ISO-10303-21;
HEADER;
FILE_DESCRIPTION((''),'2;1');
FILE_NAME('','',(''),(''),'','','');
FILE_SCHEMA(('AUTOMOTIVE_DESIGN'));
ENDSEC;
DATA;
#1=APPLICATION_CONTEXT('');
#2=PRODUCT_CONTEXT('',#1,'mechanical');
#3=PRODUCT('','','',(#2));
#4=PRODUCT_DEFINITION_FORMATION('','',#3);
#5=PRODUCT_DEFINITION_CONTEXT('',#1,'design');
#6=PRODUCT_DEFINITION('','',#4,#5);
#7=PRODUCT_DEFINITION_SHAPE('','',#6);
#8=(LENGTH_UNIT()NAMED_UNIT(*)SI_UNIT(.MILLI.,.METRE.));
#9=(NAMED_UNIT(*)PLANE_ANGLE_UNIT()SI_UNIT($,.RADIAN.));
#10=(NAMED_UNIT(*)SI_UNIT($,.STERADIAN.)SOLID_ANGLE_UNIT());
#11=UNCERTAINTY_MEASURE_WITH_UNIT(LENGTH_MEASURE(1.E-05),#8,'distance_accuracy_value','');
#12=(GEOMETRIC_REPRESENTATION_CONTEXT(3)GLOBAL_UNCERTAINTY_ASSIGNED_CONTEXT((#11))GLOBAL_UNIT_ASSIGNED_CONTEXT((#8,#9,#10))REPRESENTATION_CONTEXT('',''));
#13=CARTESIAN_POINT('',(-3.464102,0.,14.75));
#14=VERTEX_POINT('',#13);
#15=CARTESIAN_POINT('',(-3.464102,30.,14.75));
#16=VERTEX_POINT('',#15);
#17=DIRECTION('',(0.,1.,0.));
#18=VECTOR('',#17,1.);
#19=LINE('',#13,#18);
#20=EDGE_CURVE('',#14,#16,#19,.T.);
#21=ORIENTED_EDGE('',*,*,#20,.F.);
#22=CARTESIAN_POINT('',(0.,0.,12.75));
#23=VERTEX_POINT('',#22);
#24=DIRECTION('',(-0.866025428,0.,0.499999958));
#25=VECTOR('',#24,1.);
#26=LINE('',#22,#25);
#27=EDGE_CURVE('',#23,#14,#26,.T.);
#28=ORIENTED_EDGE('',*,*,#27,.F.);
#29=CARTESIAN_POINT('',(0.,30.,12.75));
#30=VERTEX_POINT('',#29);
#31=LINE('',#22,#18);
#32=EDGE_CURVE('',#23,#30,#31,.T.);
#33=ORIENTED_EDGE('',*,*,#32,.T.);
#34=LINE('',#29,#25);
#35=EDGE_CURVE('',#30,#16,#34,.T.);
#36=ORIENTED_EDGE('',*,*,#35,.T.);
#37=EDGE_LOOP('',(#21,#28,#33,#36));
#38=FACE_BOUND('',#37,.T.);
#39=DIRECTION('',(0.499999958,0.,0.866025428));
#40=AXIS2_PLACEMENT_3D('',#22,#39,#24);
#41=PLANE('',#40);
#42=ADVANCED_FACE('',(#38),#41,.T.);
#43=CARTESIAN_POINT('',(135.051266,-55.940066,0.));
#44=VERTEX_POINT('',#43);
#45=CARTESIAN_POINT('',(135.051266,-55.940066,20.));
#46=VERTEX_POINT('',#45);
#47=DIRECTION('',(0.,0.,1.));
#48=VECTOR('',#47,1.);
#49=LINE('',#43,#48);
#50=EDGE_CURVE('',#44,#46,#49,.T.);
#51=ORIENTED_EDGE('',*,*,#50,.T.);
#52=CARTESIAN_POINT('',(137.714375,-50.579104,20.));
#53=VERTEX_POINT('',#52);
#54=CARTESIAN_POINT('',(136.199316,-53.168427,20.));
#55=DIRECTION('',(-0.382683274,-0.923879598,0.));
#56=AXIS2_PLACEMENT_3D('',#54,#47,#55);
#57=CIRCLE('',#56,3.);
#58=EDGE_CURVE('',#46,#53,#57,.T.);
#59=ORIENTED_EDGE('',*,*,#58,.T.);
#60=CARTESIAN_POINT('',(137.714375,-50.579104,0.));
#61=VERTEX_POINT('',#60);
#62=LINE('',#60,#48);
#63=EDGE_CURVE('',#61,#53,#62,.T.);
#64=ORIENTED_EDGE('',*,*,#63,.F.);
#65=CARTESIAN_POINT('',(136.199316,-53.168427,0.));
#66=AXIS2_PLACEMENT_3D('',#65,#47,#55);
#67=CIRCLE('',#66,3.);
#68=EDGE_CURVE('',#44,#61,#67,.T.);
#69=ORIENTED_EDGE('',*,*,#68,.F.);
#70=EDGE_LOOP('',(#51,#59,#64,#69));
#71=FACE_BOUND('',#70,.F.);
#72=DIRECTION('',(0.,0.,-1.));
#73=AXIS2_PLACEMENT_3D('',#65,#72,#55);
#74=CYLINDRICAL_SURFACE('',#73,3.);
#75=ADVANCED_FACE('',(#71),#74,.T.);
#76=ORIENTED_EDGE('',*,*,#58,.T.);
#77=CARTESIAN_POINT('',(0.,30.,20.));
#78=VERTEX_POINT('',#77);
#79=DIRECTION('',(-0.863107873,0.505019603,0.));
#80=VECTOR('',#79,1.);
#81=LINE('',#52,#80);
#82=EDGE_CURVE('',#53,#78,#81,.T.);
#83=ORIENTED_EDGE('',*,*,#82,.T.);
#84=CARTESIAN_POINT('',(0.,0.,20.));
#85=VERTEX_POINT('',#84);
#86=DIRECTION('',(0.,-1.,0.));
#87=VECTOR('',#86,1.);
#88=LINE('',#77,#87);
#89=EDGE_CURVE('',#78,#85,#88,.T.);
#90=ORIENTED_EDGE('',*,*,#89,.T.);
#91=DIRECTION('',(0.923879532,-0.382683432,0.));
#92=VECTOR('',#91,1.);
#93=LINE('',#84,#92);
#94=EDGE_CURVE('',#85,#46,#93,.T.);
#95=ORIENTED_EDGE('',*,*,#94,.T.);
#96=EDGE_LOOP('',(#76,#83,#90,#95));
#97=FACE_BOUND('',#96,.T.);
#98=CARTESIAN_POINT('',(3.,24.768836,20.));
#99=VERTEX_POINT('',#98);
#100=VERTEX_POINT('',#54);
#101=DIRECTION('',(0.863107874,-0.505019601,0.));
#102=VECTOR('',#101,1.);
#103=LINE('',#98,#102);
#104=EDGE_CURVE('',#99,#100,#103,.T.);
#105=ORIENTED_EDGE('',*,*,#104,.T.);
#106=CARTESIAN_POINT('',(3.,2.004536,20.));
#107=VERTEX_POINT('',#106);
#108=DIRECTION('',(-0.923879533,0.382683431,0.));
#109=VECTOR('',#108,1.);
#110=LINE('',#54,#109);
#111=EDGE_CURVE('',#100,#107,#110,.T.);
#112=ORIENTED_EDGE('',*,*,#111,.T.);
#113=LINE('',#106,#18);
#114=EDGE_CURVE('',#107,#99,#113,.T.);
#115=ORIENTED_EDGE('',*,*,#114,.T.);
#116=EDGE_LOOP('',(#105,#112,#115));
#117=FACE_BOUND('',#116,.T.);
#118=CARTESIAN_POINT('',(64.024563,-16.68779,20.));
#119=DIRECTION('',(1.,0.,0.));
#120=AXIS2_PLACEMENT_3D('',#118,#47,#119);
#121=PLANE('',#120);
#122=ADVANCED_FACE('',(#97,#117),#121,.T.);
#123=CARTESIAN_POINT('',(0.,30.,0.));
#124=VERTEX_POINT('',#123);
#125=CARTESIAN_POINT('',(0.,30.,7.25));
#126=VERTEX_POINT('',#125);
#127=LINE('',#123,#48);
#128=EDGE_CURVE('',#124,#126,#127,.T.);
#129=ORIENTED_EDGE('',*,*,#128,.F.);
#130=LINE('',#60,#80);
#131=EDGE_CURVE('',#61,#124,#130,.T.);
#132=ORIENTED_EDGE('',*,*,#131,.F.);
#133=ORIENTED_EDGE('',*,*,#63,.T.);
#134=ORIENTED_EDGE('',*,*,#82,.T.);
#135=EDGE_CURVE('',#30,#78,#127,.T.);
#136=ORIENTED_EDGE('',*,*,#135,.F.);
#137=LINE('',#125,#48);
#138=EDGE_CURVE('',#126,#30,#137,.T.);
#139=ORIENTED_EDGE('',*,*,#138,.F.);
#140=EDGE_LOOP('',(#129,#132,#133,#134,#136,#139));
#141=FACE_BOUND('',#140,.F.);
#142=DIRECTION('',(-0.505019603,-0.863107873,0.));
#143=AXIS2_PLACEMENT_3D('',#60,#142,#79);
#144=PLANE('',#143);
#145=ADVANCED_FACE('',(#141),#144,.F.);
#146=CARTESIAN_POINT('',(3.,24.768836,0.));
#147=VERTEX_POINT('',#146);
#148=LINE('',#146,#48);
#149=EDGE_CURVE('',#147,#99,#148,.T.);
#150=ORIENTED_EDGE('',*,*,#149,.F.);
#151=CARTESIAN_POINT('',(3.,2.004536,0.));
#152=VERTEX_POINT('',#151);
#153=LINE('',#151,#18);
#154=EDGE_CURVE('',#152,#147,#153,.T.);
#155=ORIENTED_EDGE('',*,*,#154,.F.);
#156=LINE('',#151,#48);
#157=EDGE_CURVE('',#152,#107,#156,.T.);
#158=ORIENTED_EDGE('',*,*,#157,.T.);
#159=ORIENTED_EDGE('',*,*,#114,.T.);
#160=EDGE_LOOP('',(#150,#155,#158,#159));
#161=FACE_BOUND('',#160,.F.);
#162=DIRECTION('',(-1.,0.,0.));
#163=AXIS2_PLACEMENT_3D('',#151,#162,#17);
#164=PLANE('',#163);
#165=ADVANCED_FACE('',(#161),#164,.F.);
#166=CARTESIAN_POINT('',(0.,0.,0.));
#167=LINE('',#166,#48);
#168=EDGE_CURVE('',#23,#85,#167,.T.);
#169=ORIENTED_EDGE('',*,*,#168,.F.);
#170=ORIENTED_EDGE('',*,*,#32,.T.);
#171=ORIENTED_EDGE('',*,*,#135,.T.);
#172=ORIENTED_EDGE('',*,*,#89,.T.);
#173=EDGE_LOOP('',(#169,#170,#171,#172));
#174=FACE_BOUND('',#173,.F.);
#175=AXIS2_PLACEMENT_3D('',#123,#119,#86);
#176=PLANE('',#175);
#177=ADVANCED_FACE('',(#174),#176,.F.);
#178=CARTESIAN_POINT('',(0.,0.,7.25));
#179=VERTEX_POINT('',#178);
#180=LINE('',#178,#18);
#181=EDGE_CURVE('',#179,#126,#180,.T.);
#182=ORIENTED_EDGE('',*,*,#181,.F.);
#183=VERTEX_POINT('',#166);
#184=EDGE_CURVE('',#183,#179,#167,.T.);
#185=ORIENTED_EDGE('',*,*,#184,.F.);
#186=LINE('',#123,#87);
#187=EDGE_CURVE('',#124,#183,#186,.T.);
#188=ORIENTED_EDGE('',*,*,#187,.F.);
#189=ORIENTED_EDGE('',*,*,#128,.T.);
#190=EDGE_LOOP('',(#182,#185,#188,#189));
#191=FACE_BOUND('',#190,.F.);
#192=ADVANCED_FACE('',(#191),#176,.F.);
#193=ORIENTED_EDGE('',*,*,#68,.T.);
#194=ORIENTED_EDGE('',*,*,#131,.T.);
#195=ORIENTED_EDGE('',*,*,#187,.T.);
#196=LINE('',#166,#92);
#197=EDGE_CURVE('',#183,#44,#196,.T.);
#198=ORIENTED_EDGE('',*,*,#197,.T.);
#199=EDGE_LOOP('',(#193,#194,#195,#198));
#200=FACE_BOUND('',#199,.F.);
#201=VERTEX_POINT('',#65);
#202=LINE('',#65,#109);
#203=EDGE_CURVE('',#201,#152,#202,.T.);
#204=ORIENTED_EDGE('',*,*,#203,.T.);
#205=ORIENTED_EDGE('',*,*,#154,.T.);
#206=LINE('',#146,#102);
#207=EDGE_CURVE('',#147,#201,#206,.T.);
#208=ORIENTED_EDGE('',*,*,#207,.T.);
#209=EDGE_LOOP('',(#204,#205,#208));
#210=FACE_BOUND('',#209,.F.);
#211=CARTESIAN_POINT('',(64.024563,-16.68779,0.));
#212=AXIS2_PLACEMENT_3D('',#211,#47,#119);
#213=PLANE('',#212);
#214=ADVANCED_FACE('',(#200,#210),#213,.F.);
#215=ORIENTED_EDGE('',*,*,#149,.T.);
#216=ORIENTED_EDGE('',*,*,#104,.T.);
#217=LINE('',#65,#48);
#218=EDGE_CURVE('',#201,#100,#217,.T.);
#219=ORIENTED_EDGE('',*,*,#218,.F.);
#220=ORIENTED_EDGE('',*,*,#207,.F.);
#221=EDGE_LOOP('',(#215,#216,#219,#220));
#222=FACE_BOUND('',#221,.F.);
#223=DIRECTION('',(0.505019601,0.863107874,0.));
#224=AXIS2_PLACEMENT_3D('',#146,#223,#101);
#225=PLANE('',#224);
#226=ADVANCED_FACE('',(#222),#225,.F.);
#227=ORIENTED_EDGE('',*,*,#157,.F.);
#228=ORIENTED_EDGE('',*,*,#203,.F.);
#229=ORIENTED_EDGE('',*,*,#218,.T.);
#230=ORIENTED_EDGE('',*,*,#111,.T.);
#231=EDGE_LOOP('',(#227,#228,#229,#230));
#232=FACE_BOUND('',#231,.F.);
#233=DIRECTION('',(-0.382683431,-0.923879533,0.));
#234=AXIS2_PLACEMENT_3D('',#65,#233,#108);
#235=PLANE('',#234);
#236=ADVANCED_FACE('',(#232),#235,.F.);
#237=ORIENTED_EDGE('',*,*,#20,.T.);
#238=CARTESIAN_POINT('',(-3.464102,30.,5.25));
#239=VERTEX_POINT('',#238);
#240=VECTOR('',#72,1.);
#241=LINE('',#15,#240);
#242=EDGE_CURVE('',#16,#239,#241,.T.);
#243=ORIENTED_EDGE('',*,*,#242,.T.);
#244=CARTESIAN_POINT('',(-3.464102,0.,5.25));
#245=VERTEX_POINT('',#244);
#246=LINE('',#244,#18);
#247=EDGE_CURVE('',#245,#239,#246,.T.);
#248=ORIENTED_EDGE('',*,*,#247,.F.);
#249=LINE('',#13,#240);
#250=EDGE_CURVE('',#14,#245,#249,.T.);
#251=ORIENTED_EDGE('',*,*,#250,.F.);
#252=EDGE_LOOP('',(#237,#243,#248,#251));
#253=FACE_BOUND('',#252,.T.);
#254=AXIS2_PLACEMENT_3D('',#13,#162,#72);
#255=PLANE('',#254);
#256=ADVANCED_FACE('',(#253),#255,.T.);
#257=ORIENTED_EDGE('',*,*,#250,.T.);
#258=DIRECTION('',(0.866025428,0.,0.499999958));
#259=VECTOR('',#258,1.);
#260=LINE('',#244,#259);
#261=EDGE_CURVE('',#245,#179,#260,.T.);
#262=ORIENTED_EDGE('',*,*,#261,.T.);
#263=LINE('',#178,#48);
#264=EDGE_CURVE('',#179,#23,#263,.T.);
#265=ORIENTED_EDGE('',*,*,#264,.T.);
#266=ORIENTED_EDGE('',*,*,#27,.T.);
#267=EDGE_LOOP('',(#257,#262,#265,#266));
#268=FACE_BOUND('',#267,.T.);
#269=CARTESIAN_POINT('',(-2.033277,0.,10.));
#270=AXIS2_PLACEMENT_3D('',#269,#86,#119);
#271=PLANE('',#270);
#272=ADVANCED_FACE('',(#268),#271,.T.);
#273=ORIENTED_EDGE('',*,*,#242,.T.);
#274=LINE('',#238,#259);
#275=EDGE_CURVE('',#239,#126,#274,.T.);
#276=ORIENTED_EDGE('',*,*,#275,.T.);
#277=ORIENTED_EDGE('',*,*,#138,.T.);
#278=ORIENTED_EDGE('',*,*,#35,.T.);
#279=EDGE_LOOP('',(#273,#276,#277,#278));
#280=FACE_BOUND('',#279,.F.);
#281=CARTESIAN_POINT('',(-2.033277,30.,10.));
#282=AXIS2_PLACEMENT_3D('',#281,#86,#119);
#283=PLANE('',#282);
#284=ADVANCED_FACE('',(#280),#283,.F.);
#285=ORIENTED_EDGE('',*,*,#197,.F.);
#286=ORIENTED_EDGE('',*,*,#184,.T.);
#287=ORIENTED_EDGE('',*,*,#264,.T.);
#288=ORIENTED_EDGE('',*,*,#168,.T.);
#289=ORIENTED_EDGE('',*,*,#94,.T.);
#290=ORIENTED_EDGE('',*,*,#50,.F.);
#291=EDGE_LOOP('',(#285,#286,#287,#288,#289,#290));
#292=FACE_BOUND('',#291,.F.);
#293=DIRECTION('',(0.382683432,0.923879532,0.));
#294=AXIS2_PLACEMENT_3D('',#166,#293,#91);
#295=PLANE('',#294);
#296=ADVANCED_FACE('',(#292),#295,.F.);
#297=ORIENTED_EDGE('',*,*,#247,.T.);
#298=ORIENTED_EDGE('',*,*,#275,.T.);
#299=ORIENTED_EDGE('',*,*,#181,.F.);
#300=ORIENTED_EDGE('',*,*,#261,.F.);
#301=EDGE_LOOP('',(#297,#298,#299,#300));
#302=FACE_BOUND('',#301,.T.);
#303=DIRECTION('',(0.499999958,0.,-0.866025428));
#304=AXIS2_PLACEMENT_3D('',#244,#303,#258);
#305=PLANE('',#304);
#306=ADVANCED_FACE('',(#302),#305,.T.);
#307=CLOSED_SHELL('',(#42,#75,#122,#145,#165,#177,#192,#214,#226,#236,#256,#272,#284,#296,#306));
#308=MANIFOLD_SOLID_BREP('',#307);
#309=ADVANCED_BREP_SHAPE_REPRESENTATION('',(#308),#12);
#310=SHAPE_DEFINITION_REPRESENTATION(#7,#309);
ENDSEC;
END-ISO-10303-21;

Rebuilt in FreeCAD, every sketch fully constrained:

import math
import FreeCAD as App
import Part
import Sketcher
Q = App.Units.Quantity


def add_polygon(sketch, points):
    """Adds a closed chain of lines whose ends are joined by coincident constraints."""
    first, n = sketch.GeometryCount, len(points)
    for a, b in zip(points, points[1:] + points[:1]):
        sketch.addGeometry(Part.LineSegment(App.Vector(*a, 0), App.Vector(*b, 0)), False)
    for i in range(n):
        sketch.addConstraint(Sketcher.Constraint("Coincident", first + i, 2, first + (i + 1) % n, 1))

doc = App.newDocument("Part")
body = doc.addObject("PartDesign::Body", "Body")

# Sketch on XY plane
sketch1 = body.newObject("Sketcher::SketchObject", "Sketch")
sketch1.AttachmentSupport = (doc.getObject("XY_Plane"), [""])
sketch1.MapMode = "FlatFace"
sketch1.addGeometry(Part.LineSegment(App.Vector(0, 30, 0), App.Vector(0, 0, 0)), False)  # 0
sketch1.addGeometry(Part.LineSegment(App.Vector(0, 0, 0), App.Vector(135.051266, -55.940066, 0)), False)  # 1
sketch1.addGeometry(Part.ArcOfCircle(Part.Circle(App.Vector(136.199316, -53.168427, 0), App.Vector(0, 0, 1), 3), math.radians(-112.49999), math.radians(59.667336)), False)  # 2
sketch1.addGeometry(Part.LineSegment(App.Vector(137.714375, -50.579104, 0), App.Vector(0, 30, 0)), False)  # 3
add_polygon(sketch1, [(136.199316, -53.168427), (3, 2.004536), (3, 24.768836)])  # lines 4-6
sketch1.addConstraint([
    Sketcher.Constraint("Coincident", 0, 2, 1, 1),
    Sketcher.Constraint("Tangent", 1, 2, 2, 1),
    Sketcher.Constraint("Tangent", 2, 2, 3, 1),
    Sketcher.Constraint("Coincident", 3, 2, 0, 1),
    Sketcher.Constraint("Vertical", 0),
    Sketcher.Constraint("Vertical", 5),
    Sketcher.Constraint("Coincident", 0, 2, -1, 1),
    Sketcher.Constraint("Coincident", 6, 2, 2, 3),
    Sketcher.Constraint("Parallel", 1, 4),
    Sketcher.Constraint("Parallel", 3, 6),
    Sketcher.Constraint("Radius", 2, 3.0),
    Sketcher.Constraint("DistanceY", 0, 2, 0, 1, 30.0),
    Sketcher.Constraint("DistanceX", -1, 1, 4, 2, 3.0),
    Sketcher.Constraint("Angle", 1, Q("-22.5 deg")),
    Sketcher.Constraint("Distance", 4, 144.173901),
])
pad1 = body.newObject("PartDesign::Pad", "Pad")
pad1.Profile = sketch1
pad1.Length = 20

# Sketch on XZ plane
sketch2 = body.newObject("Sketcher::SketchObject", "Sketch001")
sketch2.AttachmentSupport = (doc.getObject("XZ_Plane"), [""])
sketch2.MapMode = "FlatFace"
add_polygon(sketch2, [(0, 7.25), (0, 12.75), (-3.464102, 14.75), (-3.464102, 5.25)])  # lines 0-3
sketch2.addConstraint([
    Sketcher.Constraint("Vertical", 0),
    Sketcher.Constraint("Vertical", 2),
    Sketcher.Constraint("PointOnObject", 0, 2, -2),
    Sketcher.Constraint("Equal", 1, 3),
    Sketcher.Constraint("Angle", 1, Q("150.000003 deg")),
    Sketcher.Constraint("Distance", 1, 4.0),
    Sketcher.Constraint("DistanceY", 0, 1, 0, 2, 5.5),
    Sketcher.Constraint("DistanceY", -1, 1, 0, 2, 12.75),
])
pad2 = body.newObject("PartDesign::Pad", "Pad001")
pad2.Profile = sketch2
pad2.Length = 30
pad2.Reversed = True

doc.recompute()
